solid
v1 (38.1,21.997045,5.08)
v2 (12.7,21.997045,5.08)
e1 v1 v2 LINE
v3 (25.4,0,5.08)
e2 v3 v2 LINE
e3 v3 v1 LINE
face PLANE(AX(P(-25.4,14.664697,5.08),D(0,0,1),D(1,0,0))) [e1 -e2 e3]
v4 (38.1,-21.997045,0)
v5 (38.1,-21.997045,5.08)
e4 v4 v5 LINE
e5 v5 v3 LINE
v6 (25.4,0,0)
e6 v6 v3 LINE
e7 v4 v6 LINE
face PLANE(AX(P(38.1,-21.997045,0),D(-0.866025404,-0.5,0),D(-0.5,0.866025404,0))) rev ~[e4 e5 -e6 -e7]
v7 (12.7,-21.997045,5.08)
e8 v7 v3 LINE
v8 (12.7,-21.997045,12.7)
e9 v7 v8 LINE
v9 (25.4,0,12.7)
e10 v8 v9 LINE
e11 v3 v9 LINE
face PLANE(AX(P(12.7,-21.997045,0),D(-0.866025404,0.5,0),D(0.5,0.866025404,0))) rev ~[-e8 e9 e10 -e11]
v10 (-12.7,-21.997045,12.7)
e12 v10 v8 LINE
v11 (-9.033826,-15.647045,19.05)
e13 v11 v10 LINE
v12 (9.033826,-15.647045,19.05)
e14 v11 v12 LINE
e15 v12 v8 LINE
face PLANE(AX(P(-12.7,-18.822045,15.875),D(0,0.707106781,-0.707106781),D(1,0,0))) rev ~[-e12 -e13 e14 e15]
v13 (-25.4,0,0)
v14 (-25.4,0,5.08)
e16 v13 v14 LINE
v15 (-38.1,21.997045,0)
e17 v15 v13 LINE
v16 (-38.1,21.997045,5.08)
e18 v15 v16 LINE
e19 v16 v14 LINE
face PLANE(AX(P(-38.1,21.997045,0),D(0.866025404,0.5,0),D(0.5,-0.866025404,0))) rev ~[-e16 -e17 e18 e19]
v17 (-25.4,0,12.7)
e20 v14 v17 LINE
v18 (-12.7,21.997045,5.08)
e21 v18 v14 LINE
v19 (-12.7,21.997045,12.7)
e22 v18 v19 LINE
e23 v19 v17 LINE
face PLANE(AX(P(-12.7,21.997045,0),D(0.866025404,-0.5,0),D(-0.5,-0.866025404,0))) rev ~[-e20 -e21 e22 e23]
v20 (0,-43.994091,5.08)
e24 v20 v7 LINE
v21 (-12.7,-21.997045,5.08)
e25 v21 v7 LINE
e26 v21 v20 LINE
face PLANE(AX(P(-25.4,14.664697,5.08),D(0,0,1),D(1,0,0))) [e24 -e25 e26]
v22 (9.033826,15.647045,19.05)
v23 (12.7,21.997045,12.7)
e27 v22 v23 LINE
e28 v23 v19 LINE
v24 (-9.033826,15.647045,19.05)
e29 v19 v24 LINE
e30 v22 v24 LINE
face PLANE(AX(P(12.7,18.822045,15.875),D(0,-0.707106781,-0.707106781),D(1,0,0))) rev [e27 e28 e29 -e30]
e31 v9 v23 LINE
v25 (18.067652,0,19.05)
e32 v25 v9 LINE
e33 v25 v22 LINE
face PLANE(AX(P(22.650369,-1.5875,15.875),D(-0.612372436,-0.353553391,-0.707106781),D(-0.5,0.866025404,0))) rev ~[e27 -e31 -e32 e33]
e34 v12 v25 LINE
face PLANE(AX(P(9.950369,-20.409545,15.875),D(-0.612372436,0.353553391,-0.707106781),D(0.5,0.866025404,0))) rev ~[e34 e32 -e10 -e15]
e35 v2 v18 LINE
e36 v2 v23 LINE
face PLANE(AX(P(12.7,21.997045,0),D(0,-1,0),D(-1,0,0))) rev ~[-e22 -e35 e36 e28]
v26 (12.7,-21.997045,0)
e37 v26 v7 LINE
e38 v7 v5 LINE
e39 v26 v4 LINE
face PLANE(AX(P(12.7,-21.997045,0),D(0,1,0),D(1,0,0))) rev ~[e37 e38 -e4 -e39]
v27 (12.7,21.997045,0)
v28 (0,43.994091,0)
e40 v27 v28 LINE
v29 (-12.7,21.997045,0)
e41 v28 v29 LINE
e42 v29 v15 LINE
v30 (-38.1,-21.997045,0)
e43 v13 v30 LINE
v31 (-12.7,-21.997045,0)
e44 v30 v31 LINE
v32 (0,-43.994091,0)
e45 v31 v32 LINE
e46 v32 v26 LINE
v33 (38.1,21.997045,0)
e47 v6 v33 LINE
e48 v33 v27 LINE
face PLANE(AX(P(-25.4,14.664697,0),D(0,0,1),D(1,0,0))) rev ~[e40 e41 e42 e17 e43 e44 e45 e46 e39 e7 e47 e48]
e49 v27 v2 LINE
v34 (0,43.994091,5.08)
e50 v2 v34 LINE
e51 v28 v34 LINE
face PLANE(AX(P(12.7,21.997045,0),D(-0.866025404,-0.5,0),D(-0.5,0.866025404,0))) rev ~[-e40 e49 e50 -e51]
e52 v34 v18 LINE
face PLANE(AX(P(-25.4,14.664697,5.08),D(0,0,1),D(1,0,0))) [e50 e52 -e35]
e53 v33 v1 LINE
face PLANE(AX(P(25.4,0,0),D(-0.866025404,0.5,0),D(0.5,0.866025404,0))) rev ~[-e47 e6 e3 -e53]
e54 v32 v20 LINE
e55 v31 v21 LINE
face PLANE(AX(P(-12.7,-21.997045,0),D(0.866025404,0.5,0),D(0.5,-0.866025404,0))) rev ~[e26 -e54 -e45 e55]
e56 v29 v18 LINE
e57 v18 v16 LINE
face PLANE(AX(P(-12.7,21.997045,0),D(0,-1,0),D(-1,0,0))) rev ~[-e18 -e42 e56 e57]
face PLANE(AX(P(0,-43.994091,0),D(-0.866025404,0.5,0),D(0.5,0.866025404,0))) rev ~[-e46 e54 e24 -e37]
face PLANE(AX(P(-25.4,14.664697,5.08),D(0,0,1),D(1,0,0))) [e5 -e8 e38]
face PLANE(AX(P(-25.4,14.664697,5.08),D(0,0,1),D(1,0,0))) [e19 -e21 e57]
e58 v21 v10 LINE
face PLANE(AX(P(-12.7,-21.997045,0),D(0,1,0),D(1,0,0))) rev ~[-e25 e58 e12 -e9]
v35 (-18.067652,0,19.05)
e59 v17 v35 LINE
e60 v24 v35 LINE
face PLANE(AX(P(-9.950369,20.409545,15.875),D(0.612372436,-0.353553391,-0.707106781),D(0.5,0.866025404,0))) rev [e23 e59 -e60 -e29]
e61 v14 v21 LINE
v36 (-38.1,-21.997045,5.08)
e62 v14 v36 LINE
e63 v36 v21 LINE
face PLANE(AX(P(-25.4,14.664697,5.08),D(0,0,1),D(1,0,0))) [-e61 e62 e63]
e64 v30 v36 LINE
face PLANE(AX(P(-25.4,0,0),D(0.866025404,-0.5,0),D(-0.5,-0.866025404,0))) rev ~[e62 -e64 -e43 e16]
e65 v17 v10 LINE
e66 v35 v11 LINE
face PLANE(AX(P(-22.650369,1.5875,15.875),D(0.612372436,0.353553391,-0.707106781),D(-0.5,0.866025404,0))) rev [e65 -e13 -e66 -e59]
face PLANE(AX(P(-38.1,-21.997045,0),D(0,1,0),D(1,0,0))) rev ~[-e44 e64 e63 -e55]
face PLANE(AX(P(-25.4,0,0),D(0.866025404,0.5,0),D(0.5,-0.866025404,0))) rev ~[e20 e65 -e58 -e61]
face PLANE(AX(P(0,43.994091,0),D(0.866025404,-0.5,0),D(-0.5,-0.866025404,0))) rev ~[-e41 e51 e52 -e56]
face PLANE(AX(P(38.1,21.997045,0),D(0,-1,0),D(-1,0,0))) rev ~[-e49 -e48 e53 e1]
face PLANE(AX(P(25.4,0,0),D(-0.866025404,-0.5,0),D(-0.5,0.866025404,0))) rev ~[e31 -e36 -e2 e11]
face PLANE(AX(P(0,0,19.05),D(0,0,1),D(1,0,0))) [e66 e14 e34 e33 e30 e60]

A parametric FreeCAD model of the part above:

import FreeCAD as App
import Part
import Sketcher
from FreeCAD import Vector
Q = App.Units.Quantity


def edges_at(feature, points):
    """Names of the edges that pass closest to the given points."""
    edges = feature.Shape.Edges
    near = lambda p: min(range(len(edges)), key=lambda i: edges[i].distToShape(Part.Vertex(*p))[0])
    return sorted({f"Edge{near(p) + 1}" for p in points})


def add_polygon(sketch, points):
    """Adds a closed chain of lines whose ends are joined by coincident constraints."""
    first, n = sketch.GeometryCount, len(points)
    for a, b in zip(points, points[1:] + points[:1]):
        sketch.addGeometry(Part.LineSegment(App.Vector(*a, 0), App.Vector(*b, 0)), False)
    for i in range(n):
        sketch.addConstraint(Sketcher.Constraint("Coincident", first + i, 2, first + (i + 1) % n, 1))

doc = App.newDocument("Part")
body = doc.addObject("PartDesign::Body", "Body")

# Sketch on XY plane
sketch1 = body.newObject("Sketcher::SketchObject", "Sketch")
sketch1.AttachmentSupport = (doc.getObject("XY_Plane"), [""])
sketch1.MapMode = "FlatFace"
add_polygon(sketch1, [(13, 22), (-13, 22), (-25, 0), (-13, -22), (13, -22), (25, 0)])  # lines 0-5
sketch1.addConstraint([
    Sketcher.Constraint("Horizontal", 0),
    Sketcher.Constraint("Horizontal", 3),
    Sketcher.Constraint("Symmetric", 0, 2, 3, 2, -1, 1),
    Sketcher.Constraint("Symmetric", 1, 2, 4, 2, -1, 1),
    Sketcher.Constraint("PointOnObject", 1, 2, -1),
    Sketcher.Constraint("Parallel", 2, 5),
    Sketcher.Constraint("Vertical", 0, 2, 2, 2),
    Sketcher.Constraint("DistanceX", 0, 2, 0, 1, Q("1 in")),
    Sketcher.Constraint("Distance", 1, Q("1 in")),
    Sketcher.Constraint("DistanceX", 1, 2, -1, 1, Q("1 in")),
])
pad1 = body.newObject("PartDesign::Pad", "Pad")
pad1.Profile = sketch1
pad1.Length = Q("0.75 in")

# Sketch on XY plane
sketch2 = body.newObject("Sketcher::SketchObject", "Sketch001")
sketch2.AttachmentSupport = (doc.getObject("XY_Plane"), [""])
sketch2.MapMode = "FlatFace"
add_polygon(sketch2, [(-13, 22), (-38, 22), (-25, 0), (-38, -22), (-13, -22), (0, -44), (13, -22), (38, -22), (25, 0), (38, 22), (13, 22), (0, 44)])  # lines 0-11
sketch2.addConstraint([
    Sketcher.Constraint("Horizontal", 0),
    Sketcher.Constraint("Horizontal", 3),
    Sketcher.Constraint("Horizontal", 6),
    Sketcher.Constraint("Horizontal", 9),
    Sketcher.Constraint("Symmetric", 0, 2, 6, 2, -1, 1),
    Sketcher.Constraint("Symmetric", 1, 2, 7, 2, -1, 1),
    Sketcher.Constraint("Symmetric", 2, 2, 8, 2, -1, 1),
    Sketcher.Constraint("Symmetric", 4, 2, 10, 2, -1, 1),
    Sketcher.Constraint("Symmetric", 3, 2, 5, 2, -2),
    Sketcher.Constraint("PointOnObject", 1, 2, -1),
    Sketcher.Constraint("PointOnObject", 4, 2, -2),
    Sketcher.Constraint("Parallel", 1, 4),
    Sketcher.Constraint("Parallel", 2, 5),
    Sketcher.Constraint("Parallel", 7, 10),
    Sketcher.Constraint("Parallel", 8, 11),
    Sketcher.Constraint("Equal", 2, 4),
    Sketcher.Constraint("DistanceX", 0, 2, 0, 1, Q("1 in")),
    Sketcher.Constraint("Distance", 1, Q("1 in")),
    Sketcher.Constraint("Angle", 1, Q("-60 deg")),
])
pad2 = body.newObject("PartDesign::Pad", "Pad001")
pad2.Profile = sketch2
pad2.Length = Q("0.2 in")
doc.recompute()

chamfer = body.newObject("PartDesign::Chamfer", "Chamfer")
chamfer.Base = (pad2, edges_at(pad2, [
    (0, -21.997, 19.05),
    (19.05, -10.999, 19.05),
    (19.05, 10.999, 19.05),
    (0, 21.997, 19.05),
    (-19.05, 10.999, 19.05),
    (-19.05, -10.999, 19.05),
]))
chamfer.Size = Q("0.25 in")

doc.recompute()
